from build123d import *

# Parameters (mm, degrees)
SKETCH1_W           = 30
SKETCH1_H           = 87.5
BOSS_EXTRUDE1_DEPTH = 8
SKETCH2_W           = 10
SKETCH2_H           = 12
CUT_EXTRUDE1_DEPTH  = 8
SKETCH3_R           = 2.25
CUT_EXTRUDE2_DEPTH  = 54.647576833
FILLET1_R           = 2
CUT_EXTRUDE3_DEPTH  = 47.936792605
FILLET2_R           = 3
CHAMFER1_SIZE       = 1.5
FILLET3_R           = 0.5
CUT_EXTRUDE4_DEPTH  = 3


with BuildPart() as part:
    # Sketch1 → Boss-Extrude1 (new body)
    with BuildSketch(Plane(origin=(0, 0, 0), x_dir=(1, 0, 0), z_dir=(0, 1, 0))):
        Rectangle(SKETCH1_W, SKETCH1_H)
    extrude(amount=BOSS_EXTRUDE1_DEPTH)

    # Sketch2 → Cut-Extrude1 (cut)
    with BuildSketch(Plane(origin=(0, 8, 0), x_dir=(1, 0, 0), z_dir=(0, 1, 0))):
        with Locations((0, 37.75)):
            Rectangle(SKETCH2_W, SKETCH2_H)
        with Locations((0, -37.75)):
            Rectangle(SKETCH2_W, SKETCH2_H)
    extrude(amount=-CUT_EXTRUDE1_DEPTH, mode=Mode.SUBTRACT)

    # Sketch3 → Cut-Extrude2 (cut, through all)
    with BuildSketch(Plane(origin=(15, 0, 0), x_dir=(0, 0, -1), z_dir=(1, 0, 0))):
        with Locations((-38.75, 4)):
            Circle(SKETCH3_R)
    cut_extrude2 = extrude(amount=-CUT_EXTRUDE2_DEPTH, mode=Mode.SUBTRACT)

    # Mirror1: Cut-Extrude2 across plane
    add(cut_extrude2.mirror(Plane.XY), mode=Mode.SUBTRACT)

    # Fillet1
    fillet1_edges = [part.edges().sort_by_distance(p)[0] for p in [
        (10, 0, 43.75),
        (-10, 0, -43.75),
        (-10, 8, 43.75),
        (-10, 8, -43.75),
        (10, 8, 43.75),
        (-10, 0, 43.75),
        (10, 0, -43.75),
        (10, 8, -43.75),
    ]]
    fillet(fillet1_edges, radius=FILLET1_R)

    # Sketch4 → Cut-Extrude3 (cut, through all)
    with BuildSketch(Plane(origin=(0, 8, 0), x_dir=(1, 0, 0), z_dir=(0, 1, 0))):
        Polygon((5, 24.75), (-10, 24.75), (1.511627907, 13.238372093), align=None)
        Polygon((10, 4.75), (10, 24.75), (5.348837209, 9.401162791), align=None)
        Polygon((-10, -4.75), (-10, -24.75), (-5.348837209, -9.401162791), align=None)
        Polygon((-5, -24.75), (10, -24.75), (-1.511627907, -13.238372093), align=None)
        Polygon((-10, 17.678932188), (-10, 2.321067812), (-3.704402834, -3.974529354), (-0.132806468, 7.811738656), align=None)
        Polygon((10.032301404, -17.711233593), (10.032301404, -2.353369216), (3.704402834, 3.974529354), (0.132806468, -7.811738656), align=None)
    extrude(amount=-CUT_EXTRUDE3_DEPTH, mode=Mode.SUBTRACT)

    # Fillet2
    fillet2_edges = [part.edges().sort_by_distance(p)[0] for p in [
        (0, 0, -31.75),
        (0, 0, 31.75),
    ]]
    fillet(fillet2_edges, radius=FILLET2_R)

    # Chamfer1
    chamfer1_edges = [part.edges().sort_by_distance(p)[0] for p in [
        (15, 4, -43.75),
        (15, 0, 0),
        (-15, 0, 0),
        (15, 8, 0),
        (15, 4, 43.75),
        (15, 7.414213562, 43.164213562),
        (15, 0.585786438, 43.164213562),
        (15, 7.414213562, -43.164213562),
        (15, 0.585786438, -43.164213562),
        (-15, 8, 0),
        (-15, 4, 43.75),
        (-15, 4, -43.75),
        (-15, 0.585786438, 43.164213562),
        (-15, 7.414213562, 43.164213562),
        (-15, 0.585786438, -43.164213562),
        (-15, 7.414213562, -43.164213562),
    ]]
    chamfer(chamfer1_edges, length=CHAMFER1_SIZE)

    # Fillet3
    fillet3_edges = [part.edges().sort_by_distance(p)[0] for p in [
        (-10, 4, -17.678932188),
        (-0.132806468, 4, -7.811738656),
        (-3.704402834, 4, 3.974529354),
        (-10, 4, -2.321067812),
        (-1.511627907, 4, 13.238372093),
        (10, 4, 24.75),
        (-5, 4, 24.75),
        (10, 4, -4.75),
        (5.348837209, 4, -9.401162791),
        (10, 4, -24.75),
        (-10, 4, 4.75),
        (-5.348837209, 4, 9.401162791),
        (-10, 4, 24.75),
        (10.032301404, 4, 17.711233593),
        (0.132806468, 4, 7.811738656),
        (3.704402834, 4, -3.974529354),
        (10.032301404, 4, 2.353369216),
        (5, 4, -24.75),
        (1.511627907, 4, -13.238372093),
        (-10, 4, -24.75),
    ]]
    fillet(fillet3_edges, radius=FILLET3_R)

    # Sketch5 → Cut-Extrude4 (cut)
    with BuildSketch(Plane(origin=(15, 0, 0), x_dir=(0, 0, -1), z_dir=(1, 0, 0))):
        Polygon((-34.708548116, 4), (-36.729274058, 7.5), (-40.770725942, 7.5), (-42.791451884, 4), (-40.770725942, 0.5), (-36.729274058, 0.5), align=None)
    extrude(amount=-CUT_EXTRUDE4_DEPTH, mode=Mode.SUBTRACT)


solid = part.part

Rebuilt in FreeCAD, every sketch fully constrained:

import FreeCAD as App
import Part
import Sketcher

V = App.Vector
Q = App.Units.Quantity


def edges_at(feature, points):
    """Names of the edges that pass closest to the given points."""
    edges = feature.Shape.Edges
    near = lambda p: min(range(len(edges)), key=lambda i: edges[i].distToShape(Part.Vertex(*p))[0])
    return sorted({f"Edge{near(p) + 1}" for p in points})


def add_polygon(sketch, points):
    """Adds a closed chain of lines whose ends are joined by coincident constraints."""
    first, n = sketch.GeometryCount, len(points)
    for a, b in zip(points, points[1:] + points[:1]):
        sketch.addGeometry(Part.LineSegment(App.Vector(*a, 0), App.Vector(*b, 0)), False)
    for i in range(n):
        sketch.addConstraint(Sketcher.Constraint("Coincident", first + i, 2, first + (i + 1) % n, 1))

doc = App.newDocument("Part")
params = doc.addObject("Spreadsheet::Sheet", "Params")
for row, (alias, value) in enumerate([
    ("sketch1_width", "30 mm"),
    ("sketch1_height", "87.5 mm"),
    ("pad1_length", "8 mm"),
    ("sketch2_width", "10 mm"),
    ("sketch2_height", "12 mm"),
    ("pocket1_length", "8 mm"),
    ("sketch3_diameter", "4.5 mm"),
    ("fillet_radius", "2 mm"),
    ("sketch4_width", "15 mm"),
    ("sketch4_height", "20 mm"),
    ("sketch4_length", "14 mm"),
    ("fillet2_radius", "3 mm"),
    ("chamfer_size", "1.5 mm"),
    ("fillet3_radius", "0.5 mm"),
    ("pocket4_length", "3 mm"),
], start=1):
    params.set(f"A{row}", alias)
    params.set(f"B{row}", "=" + value)
    params.setAlias(f"B{row}", alias)

body = doc.addObject("PartDesign::Body", "Body")

sketch1 = body.newObject("Sketcher::SketchObject", "Sketch")
sketch1.AttachmentSupport = (doc.getObject("XZ_Plane"), [""])
sketch1.MapMode = "FlatFace"
add_polygon(sketch1, [(-15, -44), (-15, 44), (15, 44), (15, -44)])
sketch1.addConstraint(Sketcher.Constraint("Vertical", 0))
sketch1.addConstraint(Sketcher.Constraint("Horizontal", 1))
sketch1.addConstraint(Sketcher.Constraint("Vertical", 2))
sketch1.addConstraint(Sketcher.Constraint("Horizontal", 3))
sketch1.addConstraint(Sketcher.Constraint("Symmetric", 0, 2, 2, 2, -1, 1))
sketch1.addConstraint(Sketcher.Constraint("DistanceX", 1, 1, 1, 2, 30.0))
sketch1.addConstraint(Sketcher.Constraint("DistanceY", 0, 1, 0, 2, 87.5))
sketch1.setExpression("Constraints[9]", "Params.sketch1_width")
sketch1.setExpression("Constraints[10]", "Params.sketch1_height")
pad1 = body.newObject("PartDesign::Pad", "Pad")
pad1.Profile = sketch1
pad1.setExpression("Length", "Params.pad1_length")
pad1.Reversed = True

sketch2 = body.newObject("Sketcher::SketchObject", "Sketch001")
sketch2.AttachmentSupport = (doc.getObject("XZ_Plane"), [""])
sketch2.MapMode = "FlatFace"
sketch2.AttachmentOffset = App.Placement(V(0, 0, -8), App.Rotation())
add_polygon(sketch2, [(-5, -44), (-5, -32), (5, -32), (5, -44)])
add_polygon(sketch2, [(-5, 32), (-5, 44), (5, 44), (5, 32)])
sketch2.addConstraint(Sketcher.Constraint("Vertical", 0))
sketch2.addConstraint(Sketcher.Constraint("Horizontal", 1))
sketch2.addConstraint(Sketcher.Constraint("Vertical", 2))
sketch2.addConstraint(Sketcher.Constraint("Horizontal", 3))
sketch2.addConstraint(Sketcher.Constraint("Vertical", 4))
sketch2.addConstraint(Sketcher.Constraint("Horizontal", 5))
sketch2.addConstraint(Sketcher.Constraint("Vertical", 6))
sketch2.addConstraint(Sketcher.Constraint("Horizontal", 7))
sketch2.addConstraint(Sketcher.Constraint("Symmetric", 2, 2, 4, 2, -1, 1))
sketch2.addConstraint(Sketcher.Constraint("Symmetric", 0, 2, 6, 2, -1, 1))
sketch2.addConstraint(Sketcher.Constraint("Vertical", 3, 2, 4, 2))
sketch2.addConstraint(Sketcher.Constraint("DistanceX", 1, 1, 1, 2, 10.0))
sketch2.addConstraint(Sketcher.Constraint("DistanceY", 0, 1, 0, 2, 12.0))
sketch2.addConstraint(Sketcher.Constraint("DistanceY", 0, 2, 4, 2, 75.5))
sketch2.setExpression("Constraints[19]", "Params.sketch2_width")
sketch2.setExpression("Constraints[20]", "Params.sketch2_height")
pocket1 = body.newObject("PartDesign::Pocket", "Pocket")
pocket1.Profile = sketch2
pocket1.setExpression("Length", "Params.pocket1_length")
pocket1.Reversed = True

sketch3 = body.newObject("Sketcher::SketchObject", "Sketch002")
sketch3.AttachmentSupport = (doc.getObject("YZ_Plane"), [""])
sketch3.MapMode = "FlatFace"
sketch3.AttachmentOffset = App.Placement(V(0, 0, 15), App.Rotation())
sketch3.addGeometry(Part.Circle(V(4, 38.8, 0), V(0, 0, 1), 2.2), False)
sketch3.addConstraint(Sketcher.Constraint("Diameter", 0, 4.5))
sketch3.addConstraint(Sketcher.Constraint("DistanceX", -1, 1, 0, 3, 4.0))
sketch3.addConstraint(Sketcher.Constraint("DistanceY", -1, 1, 0, 3, 38.75))
sketch3.setExpression("Constraints[0]", "Params.sketch3_diameter")
pocket2 = body.newObject("PartDesign::Pocket", "Pocket001")
pocket2.Profile = sketch3
pocket2.Type = "ThroughAll"
doc.recompute()

mirrored = body.newObject("PartDesign::Mirrored", "Mirrored")
mirrored.Originals = [pocket2]
mirrored.MirrorPlane = (doc.getObject("XY_Plane"), [""])
body.Tip = mirrored
doc.recompute()

fillet = body.newObject("PartDesign::Fillet", "Fillet")
fillet.Base = (mirrored, edges_at(mirrored, [
    (10, 0, 43.75),
    (-10, 0, -43.75),
    (-10, 8, 43.75),
    (-10, 8, -43.75),
    (10, 8, 43.75),
    (-10, 0, 43.75),
    (10, 0, -43.75),
    (10, 8, -43.75),
]))
fillet.setExpression("Radius", "Params.fillet_radius")

sketch4 = body.newObject("Sketcher::SketchObject", "Sketch003")
sketch4.AttachmentSupport = (doc.getObject("XZ_Plane"), [""])
sketch4.MapMode = "FlatFace"
sketch4.AttachmentOffset = App.Placement(V(0, 0, -8), App.Rotation())
add_polygon(sketch4, [(5, -25), (-10, -25), (2, -13)])
add_polygon(sketch4, [(10, -5), (10, -25), (5, -9)])
add_polygon(sketch4, [(-10, 5), (-10, 25), (-5, 9)])
add_polygon(sketch4, [(-5, 25), (10, 25), (-2, 13)])
add_polygon(sketch4, [(-10, -18), (-10, -2), (-4, 4), (0, -8)])
add_polygon(sketch4, [(10, 18), (10, 2), (4, -4), (0, 8)])
sketch4.addConstraint(Sketcher.Constraint("Horizontal", 0))
sketch4.addConstraint(Sketcher.Constraint("Vertical", 3))
sketch4.addConstraint(Sketcher.Constraint("Vertical", 6))
sketch4.addConstraint(Sketcher.Constraint("Horizontal", 9))
sketch4.addConstraint(Sketcher.Constraint("Vertical", 12))
sketch4.addConstraint(Sketcher.Constraint("Vertical", 16))
sketch4.addConstraint(Sketcher.Constraint("Symmetric", 3, 2, 6, 2, -1, 1))
sketch4.addConstraint(Sketcher.Constraint("Symmetric", 4, 2, 7, 2, -1, 1))
sketch4.addConstraint(Sketcher.Constraint("Symmetric", 0, 2, 9, 2, -1, 1))
sketch4.addConstraint(Sketcher.Constraint("Symmetric", 1, 2, 10, 2, -1, 1))
sketch4.addConstraint(Sketcher.Constraint("Symmetric", 13, 2, 17, 2, -1, 1))
sketch4.addConstraint(Sketcher.Constraint("Symmetric", 14, 2, 18, 2, -1, 1))
sketch4.addConstraint(Sketcher.Constraint("Symmetric", 0, 2, 3, 2, -2))
sketch4.addConstraint(Sketcher.Constraint("Parallel", 2, 4))
sketch4.addConstraint(Sketcher.Constraint("Parallel", 1, 5))
sketch4.addConstraint(Sketcher.Constraint("Parallel", 5, 8))
sketch4.addConstraint(Sketcher.Constraint("Parallel", 7, 11))
sketch4.addConstraint(Sketcher.Constraint("Parallel", 10, 13))
sketch4.addConstraint(Sketcher.Constraint("Parallel", 11, 14))
sketch4.addConstraint(Sketcher.Constraint("Parallel", 13, 15))
sketch4.addConstraint(Sketcher.Constraint("Parallel", 15, 17))
sketch4.addConstraint(Sketcher.Constraint("Parallel", 17, 19))
sketch4.addConstraint(Sketcher.Constraint("Vertical", 8, 2, 12, 2))
sketch4.addConstraint(Sketcher.Constraint("DistanceX", 0, 2, 0, 1, 15.0))
sketch4.addConstraint(Sketcher.Constraint("DistanceY", 3, 2, 3, 1, 20.0))
sketch4.addConstraint(Sketcher.Constraint("Angle", 1, Q("45 deg")))
sketch4.addConstraint(Sketcher.Constraint("Distance", 19, 14.0))
sketch4.addConstraint(Sketcher.Constraint("DistanceX", 0, 2, -1, 1, 10.0))
sketch4.addConstraint(Sketcher.Constraint("DistanceY", 5, 2, 6, 2, 29.5))
sketch4.addConstraint(Sketcher.Constraint("Distance", 17, 8.949))
sketch4.addConstraint(Sketcher.Constraint("Distance", 1, 16.2799))
sketch4.addConstraint(Sketcher.Constraint("DistanceX", -1, 1, 16, 2, 10.032301))
sketch4.addConstraint(Sketcher.Constraint("DistanceY", -1, 1, 13, 2, 3.974529))
sketch4.setExpression("Constraints[43]", "Params.sketch4_width")
sketch4.setExpression("Constraints[44]", "Params.sketch4_height")
sketch4.setExpression("Constraints[46]", "Params.sketch4_length")
pocket3 = body.newObject("PartDesign::Pocket", "Pocket002")
pocket3.Profile = sketch4
pocket3.Type = "ThroughAll"
pocket3.Reversed = True
doc.recompute()

fillet2 = body.newObject("PartDesign::Fillet", "Fillet001")
fillet2.Base = (pocket3, edges_at(pocket3, [(0, 0, -31.75), (0, 0, 31.75)]))
fillet2.setExpression("Radius", "Params.fillet2_radius")
doc.recompute()

chamfer = body.newObject("PartDesign::Chamfer", "Chamfer")
chamfer.Base = (fillet2, edges_at(fillet2, [
    (15, 4, -43.75),
    (15, 0, 0),
    (-15, 0, 0),
    (15, 8, 0),
    (15, 4, 43.75),
    (15, 7.414, 43.164),
    (15, 0.586, 43.164),
    (15, 7.414, -43.164),
    (15, 0.586, -43.164),
    (-15, 8, 0),
    (-15, 4, 43.75),
    (-15, 4, -43.75),
    (-15, 0.586, 43.164),
    (-15, 7.414, 43.164),
    (-15, 0.586, -43.164),
    (-15, 7.414, -43.164),
]))
chamfer.setExpression("Size", "Params.chamfer_size")
doc.recompute()

fillet3 = body.newObject("PartDesign::Fillet", "Fillet002")
fillet3.Base = (chamfer, edges_at(chamfer, [
    (-10, 4, -17.679),
    (-0.133, 4, -7.812),
    (-3.704, 4, 3.975),
    (-10, 4, -2.321),
    (-1.512, 4, 13.238),
    (10, 4, 24.75),
    (-5, 4, 24.75),
    (10, 4, -4.75),
    (5.349, 4, -9.401),
    (10, 4, -24.75),
    (-10, 4, 4.75),
    (-5.349, 4, 9.401),
    (-10, 4, 24.75),
    (10.032, 4, 17.711),
    (0.133, 4, 7.812),
    (3.704, 4, -3.975),
    (10.032, 4, 2.353),
    (5, 4, -24.75),
    (1.512, 4, -13.238),
    (-10, 4, -24.75),
]))
fillet3.setExpression("Radius", "Params.fillet3_radius")

sketch5 = body.newObject("Sketcher::SketchObject", "Sketch004")
sketch5.AttachmentSupport = (doc.getObject("YZ_Plane"), [""])
sketch5.MapMode = "FlatFace"
sketch5.AttachmentOffset = App.Placement(V(0, 0, 15), App.Rotation())
add_polygon(sketch5, [(4, 34.7), (7.5, 36.7), (7.5, 40.8), (4, 42.8), (0.5, 40.8), (0.5, 36.7)])
sketch5.addConstraint(Sketcher.Constraint("Vertical", 1))
sketch5.addConstraint(Sketcher.Constraint("Vertical", 4))
sketch5.addConstraint(Sketcher.Constraint("Parallel", 0, 3))
sketch5.addConstraint(Sketcher.Constraint("Parallel", 2, 5))
sketch5.addConstraint(Sketcher.Constraint("Horizontal", 1, 2, 3, 2))
sketch5.addConstraint(Sketcher.Constraint("Horizontal", 0, 2, 4, 2))
sketch5.addConstraint(Sketcher.Constraint("Vertical", 2, 2, 5, 2))
sketch5.addConstraint(Sketcher.Constraint("Angle", 0, Q("30 deg")))
sketch5.addConstraint(Sketcher.Constraint("DistanceX", -1, 1, 2, 2, 4.0))
sketch5.addConstraint(Sketcher.Constraint("DistanceX", 3, 2, 1, 2, 7.0))
sketch5.addConstraint(Sketcher.Constraint("DistanceY", 1, 1, 1, 2, 4.041452))
sketch5.addConstraint(Sketcher.Constraint("DistanceY", -1, 1, 2, 2, 42.791452))
pocket4 = body.newObject("PartDesign::Pocket", "Pocket003")
pocket4.Profile = sketch5
pocket4.setExpression("Length", "Params.pocket4_length")

doc.recompute()
